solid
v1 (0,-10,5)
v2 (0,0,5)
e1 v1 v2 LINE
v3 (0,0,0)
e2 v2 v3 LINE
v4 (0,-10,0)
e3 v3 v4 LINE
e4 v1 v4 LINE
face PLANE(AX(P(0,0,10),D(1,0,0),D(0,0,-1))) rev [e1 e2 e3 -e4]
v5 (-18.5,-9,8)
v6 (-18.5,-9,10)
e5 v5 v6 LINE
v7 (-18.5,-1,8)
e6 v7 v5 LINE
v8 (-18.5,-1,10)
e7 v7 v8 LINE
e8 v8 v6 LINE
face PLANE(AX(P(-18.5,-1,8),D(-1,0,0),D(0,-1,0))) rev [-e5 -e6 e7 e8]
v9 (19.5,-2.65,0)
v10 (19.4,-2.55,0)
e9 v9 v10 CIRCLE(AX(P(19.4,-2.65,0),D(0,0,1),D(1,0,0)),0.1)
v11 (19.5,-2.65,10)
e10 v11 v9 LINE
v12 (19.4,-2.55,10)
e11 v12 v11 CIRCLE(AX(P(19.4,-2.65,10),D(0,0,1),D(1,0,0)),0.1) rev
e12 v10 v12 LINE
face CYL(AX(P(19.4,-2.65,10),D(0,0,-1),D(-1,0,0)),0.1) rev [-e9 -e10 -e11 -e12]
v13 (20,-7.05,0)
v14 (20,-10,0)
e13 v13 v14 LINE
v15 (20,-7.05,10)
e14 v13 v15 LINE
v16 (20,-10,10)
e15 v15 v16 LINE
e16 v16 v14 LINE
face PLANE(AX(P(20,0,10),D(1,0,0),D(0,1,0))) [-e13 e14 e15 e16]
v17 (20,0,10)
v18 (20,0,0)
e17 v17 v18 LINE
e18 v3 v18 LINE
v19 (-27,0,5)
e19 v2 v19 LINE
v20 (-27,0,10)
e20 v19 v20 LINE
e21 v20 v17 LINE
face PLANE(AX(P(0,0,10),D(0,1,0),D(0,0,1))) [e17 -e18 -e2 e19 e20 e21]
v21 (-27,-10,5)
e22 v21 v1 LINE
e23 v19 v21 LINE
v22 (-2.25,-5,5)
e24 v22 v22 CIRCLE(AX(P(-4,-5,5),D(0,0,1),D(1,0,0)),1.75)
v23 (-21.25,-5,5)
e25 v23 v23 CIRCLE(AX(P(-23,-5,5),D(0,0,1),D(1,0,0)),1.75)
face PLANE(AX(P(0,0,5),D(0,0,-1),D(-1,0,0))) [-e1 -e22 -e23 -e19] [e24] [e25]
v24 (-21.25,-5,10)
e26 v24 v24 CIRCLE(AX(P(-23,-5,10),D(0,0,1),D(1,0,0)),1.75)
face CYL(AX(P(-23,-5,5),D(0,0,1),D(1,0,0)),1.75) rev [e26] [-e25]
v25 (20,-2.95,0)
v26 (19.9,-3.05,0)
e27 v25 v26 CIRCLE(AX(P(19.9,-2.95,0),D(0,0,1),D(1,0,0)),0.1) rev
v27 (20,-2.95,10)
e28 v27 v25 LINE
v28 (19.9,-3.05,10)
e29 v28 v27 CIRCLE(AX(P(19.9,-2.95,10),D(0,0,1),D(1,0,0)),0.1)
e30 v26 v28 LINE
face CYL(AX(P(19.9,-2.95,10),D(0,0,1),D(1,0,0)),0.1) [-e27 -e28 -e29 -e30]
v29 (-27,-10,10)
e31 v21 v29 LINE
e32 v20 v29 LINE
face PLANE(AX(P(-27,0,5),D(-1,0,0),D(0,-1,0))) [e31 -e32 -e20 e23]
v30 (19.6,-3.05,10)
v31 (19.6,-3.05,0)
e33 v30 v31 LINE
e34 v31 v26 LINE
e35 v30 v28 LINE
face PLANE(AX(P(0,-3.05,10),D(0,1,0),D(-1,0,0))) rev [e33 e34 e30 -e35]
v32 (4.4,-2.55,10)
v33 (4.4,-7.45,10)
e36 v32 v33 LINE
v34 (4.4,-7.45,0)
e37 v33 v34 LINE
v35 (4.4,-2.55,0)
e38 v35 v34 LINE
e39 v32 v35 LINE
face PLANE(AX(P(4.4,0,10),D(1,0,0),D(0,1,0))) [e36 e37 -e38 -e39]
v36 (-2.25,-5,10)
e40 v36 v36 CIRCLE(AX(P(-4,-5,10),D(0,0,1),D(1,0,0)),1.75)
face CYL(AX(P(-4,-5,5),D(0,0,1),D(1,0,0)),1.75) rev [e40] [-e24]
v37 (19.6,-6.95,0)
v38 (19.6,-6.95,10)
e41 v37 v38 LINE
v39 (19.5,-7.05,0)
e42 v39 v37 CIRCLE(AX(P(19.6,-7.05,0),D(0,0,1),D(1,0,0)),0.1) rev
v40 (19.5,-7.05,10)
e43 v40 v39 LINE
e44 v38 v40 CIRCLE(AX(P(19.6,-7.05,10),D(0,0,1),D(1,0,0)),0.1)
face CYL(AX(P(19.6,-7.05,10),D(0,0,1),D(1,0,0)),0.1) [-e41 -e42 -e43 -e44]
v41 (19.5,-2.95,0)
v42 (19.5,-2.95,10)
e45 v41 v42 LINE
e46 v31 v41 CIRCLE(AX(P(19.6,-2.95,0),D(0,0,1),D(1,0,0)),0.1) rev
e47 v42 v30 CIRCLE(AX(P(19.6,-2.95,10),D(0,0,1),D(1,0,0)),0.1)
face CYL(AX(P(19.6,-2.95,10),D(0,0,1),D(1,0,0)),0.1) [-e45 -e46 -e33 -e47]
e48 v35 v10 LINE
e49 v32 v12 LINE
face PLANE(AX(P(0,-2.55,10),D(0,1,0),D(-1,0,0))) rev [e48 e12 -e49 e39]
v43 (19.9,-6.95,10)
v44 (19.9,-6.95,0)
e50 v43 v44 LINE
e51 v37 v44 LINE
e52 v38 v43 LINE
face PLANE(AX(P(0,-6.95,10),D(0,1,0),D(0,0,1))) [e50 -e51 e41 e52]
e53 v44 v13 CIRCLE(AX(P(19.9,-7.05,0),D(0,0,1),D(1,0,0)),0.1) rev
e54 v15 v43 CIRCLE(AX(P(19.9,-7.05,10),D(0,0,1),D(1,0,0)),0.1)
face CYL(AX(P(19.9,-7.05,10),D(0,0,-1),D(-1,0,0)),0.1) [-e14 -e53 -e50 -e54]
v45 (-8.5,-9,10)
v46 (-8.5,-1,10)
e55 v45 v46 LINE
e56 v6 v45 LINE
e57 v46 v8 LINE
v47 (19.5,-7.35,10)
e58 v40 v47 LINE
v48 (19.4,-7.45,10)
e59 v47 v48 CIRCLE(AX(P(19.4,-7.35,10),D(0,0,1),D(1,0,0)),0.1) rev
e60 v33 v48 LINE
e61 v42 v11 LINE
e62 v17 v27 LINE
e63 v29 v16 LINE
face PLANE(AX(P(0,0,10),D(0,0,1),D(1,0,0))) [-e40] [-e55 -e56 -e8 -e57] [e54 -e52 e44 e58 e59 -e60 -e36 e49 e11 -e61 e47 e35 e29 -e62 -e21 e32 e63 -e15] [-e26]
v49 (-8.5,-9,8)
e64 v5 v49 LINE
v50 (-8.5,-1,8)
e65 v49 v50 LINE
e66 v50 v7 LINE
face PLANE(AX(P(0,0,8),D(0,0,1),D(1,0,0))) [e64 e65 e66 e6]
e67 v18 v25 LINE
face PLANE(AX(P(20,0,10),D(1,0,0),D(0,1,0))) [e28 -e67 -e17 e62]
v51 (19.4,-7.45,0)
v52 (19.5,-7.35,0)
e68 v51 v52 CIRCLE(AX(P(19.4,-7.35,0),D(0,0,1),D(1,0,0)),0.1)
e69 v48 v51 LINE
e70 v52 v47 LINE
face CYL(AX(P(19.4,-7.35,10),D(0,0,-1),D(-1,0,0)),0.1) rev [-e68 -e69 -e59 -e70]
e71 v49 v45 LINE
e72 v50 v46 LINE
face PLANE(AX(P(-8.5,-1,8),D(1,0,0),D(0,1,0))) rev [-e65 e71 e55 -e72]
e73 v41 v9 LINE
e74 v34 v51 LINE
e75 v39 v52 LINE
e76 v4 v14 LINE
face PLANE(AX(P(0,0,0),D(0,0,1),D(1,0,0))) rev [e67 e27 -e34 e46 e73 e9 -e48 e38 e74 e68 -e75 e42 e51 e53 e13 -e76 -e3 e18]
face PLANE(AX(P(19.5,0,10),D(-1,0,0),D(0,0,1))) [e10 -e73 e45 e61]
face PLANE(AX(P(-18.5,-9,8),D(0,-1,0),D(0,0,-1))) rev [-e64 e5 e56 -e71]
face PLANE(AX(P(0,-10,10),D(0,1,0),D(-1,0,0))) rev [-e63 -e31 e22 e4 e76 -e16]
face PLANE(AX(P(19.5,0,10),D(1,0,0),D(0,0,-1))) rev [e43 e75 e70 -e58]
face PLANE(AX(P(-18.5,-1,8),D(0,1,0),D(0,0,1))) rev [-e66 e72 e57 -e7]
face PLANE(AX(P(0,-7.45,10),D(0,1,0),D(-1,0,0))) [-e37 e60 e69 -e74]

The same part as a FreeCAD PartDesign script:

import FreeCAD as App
import Part
import Sketcher
Q = App.Units.Quantity


def edges_at(feature, points):
    """Names of the edges that pass closest to the given points."""
    edges = feature.Shape.Edges
    near = lambda p: min(range(len(edges)), key=lambda i: edges[i].distToShape(Part.Vertex(*p))[0])
    return sorted({f"Edge{near(p) + 1}" for p in points})


def add_polygon(sketch, points):
    """Adds a closed chain of lines whose ends are joined by coincident constraints."""
    first, n = sketch.GeometryCount, len(points)
    for a, b in zip(points, points[1:] + points[:1]):
        sketch.addGeometry(Part.LineSegment(App.Vector(*a, 0), App.Vector(*b, 0)), False)
    for i in range(n):
        sketch.addConstraint(Sketcher.Constraint("Coincident", first + i, 2, first + (i + 1) % n, 1))

doc = App.newDocument("Part")
params = doc.addObject("Spreadsheet::Sheet", "Params")
for row, (alias, value) in enumerate([
    ("sketch1_width", "20 mm"),
    ("sketch1_height", "10 mm"),
    ("sketch1_width2", "0.5 mm"),
    ("sketch1_width3", "15.1 mm"),
    ("sketch1_height2", "4.9 mm"),
    ("pad1_length", "10 mm"),
    ("sketch2_diameter", "3.5 mm"),
    ("sketch2_width", "27 mm"),
    ("sketch2_height", "10 mm"),
    ("pad2_length", "5 mm"),
    ("sketch3_width", "10 mm"),
    ("sketch3_height", "8 mm"),
    ("pocket1_length", "2 mm"),
    ("fillet_radius", "0.1 mm"),
    ("fillet2_radius", "0.1 mm"),
], start=1):
    params.set(f"A{row}", alias)
    params.set(f"B{row}", "=" + value)
    params.setAlias(f"B{row}", alias)

body = doc.addObject("PartDesign::Body", "Body")

# Sketch on XY plane
sketch1 = body.newObject("Sketcher::SketchObject", "Sketch")
sketch1.AttachmentSupport = (doc.getObject("XY_Plane"), [""])
sketch1.MapMode = "FlatFace"
add_polygon(sketch1, [(20, 0), (0, 0), (0, -10), (20, -10), (20, -7), (19.5, -7), (19.5, -7.5), (4.4, -7.5), (4.4, -2.5), (19.5, -2.5), (19.5, -3), (20, -3)])  # lines 0-11
sketch1.addConstraint(Sketcher.Constraint("Horizontal", 0))
sketch1.addConstraint(Sketcher.Constraint("Vertical", 1))
sketch1.addConstraint(Sketcher.Constraint("Horizontal", 2))
sketch1.addConstraint(Sketcher.Constraint("Vertical", 3))
sketch1.addConstraint(Sketcher.Constraint("Horizontal", 4))
sketch1.addConstraint(Sketcher.Constraint("Vertical", 5))
sketch1.addConstraint(Sketcher.Constraint("Horizontal", 6))
sketch1.addConstraint(Sketcher.Constraint("Vertical", 7))
sketch1.addConstraint(Sketcher.Constraint("Horizontal", 8))
sketch1.addConstraint(Sketcher.Constraint("Vertical", 9))
sketch1.addConstraint(Sketcher.Constraint("Horizontal", 10))
sketch1.addConstraint(Sketcher.Constraint("Vertical", 11))
sketch1.addConstraint(Sketcher.Constraint("Coincident", 0, 2, -1, 1))
sketch1.addConstraint(Sketcher.Constraint("Vertical", 5, 2, 8, 2))
sketch1.addConstraint(Sketcher.Constraint("Vertical", 3, 2, 10, 2))
sketch1.addConstraint(Sketcher.Constraint("Equal", 10, 5))
sketch1.addConstraint(Sketcher.Constraint("Equal", 5, 9))
sketch1.addConstraint(Sketcher.Constraint("Equal", 3, 11))
sketch1.addConstraint(Sketcher.Constraint("DistanceX", 0, 2, 0, 1, Q("20 mm")))
sketch1.addConstraint(Sketcher.Constraint("DistanceY", 1, 2, 1, 1, Q("10 mm")))
sketch1.addConstraint(Sketcher.Constraint("DistanceX", 4, 2, 4, 1, Q("0.5 mm")))
sketch1.addConstraint(Sketcher.Constraint("DistanceX", 6, 2, 6, 1, Q("15.1 mm")))
sketch1.addConstraint(Sketcher.Constraint("DistanceY", 7, 1, 7, 2, Q("4.9 mm")))
sketch1.setExpression("Constraints[30]", "Params.sketch1_width")
sketch1.setExpression("Constraints[31]", "Params.sketch1_height")
sketch1.setExpression("Constraints[32]", "Params.sketch1_width2")
sketch1.setExpression("Constraints[33]", "Params.sketch1_width3")
sketch1.setExpression("Constraints[34]", "Params.sketch1_height2")
pad1 = body.newObject("PartDesign::Pad", "Pad")
pad1.Profile = sketch1
pad1.setExpression("Length", "Params.pad1_length")

# Sketch on XY plane
sketch2 = body.newObject("Sketcher::SketchObject", "Sketch001")
sketch2.AttachmentSupport = (doc.getObject("XY_Plane"), [""])
sketch2.MapMode = "FlatFace"
sketch2.AttachmentOffset = App.Placement(App.Vector(0, 0, 10), App.Rotation())
add_polygon(sketch2, [(-27, 0), (-27, -10), (0, -10), (0, 0)])  # lines 0-3
sketch2.addGeometry(Part.Circle(App.Vector(-23, -5, 0), App.Vector(0, 0, 1), 1.8), False)  # 4
sketch2.addGeometry(Part.Circle(App.Vector(-4, -5, 0), App.Vector(0, 0, 1), 1.8), False)  # 5
sketch2.addConstraint(Sketcher.Constraint("Vertical", 0))
sketch2.addConstraint(Sketcher.Constraint("Horizontal", 1))
sketch2.addConstraint(Sketcher.Constraint("Vertical", 2))
sketch2.addConstraint(Sketcher.Constraint("Horizontal", 3))
sketch2.addConstraint(Sketcher.Constraint("Coincident", 2, 2, -1, 1))
sketch2.addConstraint(Sketcher.Constraint("Equal", 4, 5))
sketch2.addConstraint(Sketcher.Constraint("Horizontal", 4, 3, 5, 3))
sketch2.addConstraint(Sketcher.Constraint("Diameter", 4, Q("3.5 mm")))
sketch2.addConstraint(Sketcher.Constraint("DistanceX", 1, 1, 1, 2, Q("27 mm")))
sketch2.addConstraint(Sketcher.Constraint("DistanceY", 0, 2, 0, 1, Q("10 mm")))
sketch2.addConstraint(Sketcher.Constraint("DistanceX", 4, 3, -1, 1, Q("23 mm")))
sketch2.addConstraint(Sketcher.Constraint("DistanceY", 4, 3, -1, 1, Q("5 mm")))
sketch2.addConstraint(Sketcher.Constraint("DistanceX", 5, 3, -1, 1, Q("4 mm")))
sketch2.setExpression("Constraints[11]", "Params.sketch2_diameter")
sketch2.setExpression("Constraints[12]", "Params.sketch2_width")
sketch2.setExpression("Constraints[13]", "Params.sketch2_height")
pad2 = body.newObject("PartDesign::Pad", "Pad001")
pad2.Profile = sketch2
pad2.setExpression("Length", "Params.pad2_length")
pad2.Reversed = True

# Sketch on XY plane
sketch3 = body.newObject("Sketcher::SketchObject", "Sketch002")
sketch3.AttachmentSupport = (doc.getObject("XY_Plane"), [""])
sketch3.MapMode = "FlatFace"
sketch3.AttachmentOffset = App.Placement(App.Vector(0, 0, 10), App.Rotation())
add_polygon(sketch3, [(-18, -1), (-18, -9), (-8, -9), (-8, -1)])  # lines 0-3
sketch3.addConstraint(Sketcher.Constraint("Vertical", 0))
sketch3.addConstraint(Sketcher.Constraint("Horizontal", 1))
sketch3.addConstraint(Sketcher.Constraint("Vertical", 2))
sketch3.addConstraint(Sketcher.Constraint("Horizontal", 3))
sketch3.addConstraint(Sketcher.Constraint("DistanceX", 1, 1, 1, 2, Q("10 mm")))
sketch3.addConstraint(Sketcher.Constraint("DistanceY", 0, 2, 0, 1, Q("8 mm")))
sketch3.addConstraint(Sketcher.Constraint("DistanceY", 0, 2, -1, 1, Q("9 mm")))
sketch3.addConstraint(Sketcher.Constraint("DistanceX", 0, 2, -1, 1, Q("18.5 mm")))
sketch3.setExpression("Constraints[8]", "Params.sketch3_width")
sketch3.setExpression("Constraints[9]", "Params.sketch3_height")
pocket1 = body.newObject("PartDesign::Pocket", "Pocket")
pocket1.Profile = sketch3
pocket1.setExpression("Length", "Params.pocket1_length")
doc.recompute()

fillet = body.newObject("PartDesign::Fillet", "Fillet")
fillet.Base = (pocket1, edges_at(pocket1, [(19.5, -7.45, 5), (19.5, -2.55, 5)]))
fillet.setExpression("Radius", "Params.fillet_radius")
doc.recompute()

fillet2 = body.newObject("PartDesign::Fillet", "Fillet001")
fillet2.Base = (fillet, edges_at(fillet, [
    (19.5, -6.95, 5),
    (20, -6.95, 5),
    (20, -3.05, 5),
    (19.5, -3.05, 5),
]))
fillet2.setExpression("Radius", "Params.fillet2_radius")

doc.recompute()
